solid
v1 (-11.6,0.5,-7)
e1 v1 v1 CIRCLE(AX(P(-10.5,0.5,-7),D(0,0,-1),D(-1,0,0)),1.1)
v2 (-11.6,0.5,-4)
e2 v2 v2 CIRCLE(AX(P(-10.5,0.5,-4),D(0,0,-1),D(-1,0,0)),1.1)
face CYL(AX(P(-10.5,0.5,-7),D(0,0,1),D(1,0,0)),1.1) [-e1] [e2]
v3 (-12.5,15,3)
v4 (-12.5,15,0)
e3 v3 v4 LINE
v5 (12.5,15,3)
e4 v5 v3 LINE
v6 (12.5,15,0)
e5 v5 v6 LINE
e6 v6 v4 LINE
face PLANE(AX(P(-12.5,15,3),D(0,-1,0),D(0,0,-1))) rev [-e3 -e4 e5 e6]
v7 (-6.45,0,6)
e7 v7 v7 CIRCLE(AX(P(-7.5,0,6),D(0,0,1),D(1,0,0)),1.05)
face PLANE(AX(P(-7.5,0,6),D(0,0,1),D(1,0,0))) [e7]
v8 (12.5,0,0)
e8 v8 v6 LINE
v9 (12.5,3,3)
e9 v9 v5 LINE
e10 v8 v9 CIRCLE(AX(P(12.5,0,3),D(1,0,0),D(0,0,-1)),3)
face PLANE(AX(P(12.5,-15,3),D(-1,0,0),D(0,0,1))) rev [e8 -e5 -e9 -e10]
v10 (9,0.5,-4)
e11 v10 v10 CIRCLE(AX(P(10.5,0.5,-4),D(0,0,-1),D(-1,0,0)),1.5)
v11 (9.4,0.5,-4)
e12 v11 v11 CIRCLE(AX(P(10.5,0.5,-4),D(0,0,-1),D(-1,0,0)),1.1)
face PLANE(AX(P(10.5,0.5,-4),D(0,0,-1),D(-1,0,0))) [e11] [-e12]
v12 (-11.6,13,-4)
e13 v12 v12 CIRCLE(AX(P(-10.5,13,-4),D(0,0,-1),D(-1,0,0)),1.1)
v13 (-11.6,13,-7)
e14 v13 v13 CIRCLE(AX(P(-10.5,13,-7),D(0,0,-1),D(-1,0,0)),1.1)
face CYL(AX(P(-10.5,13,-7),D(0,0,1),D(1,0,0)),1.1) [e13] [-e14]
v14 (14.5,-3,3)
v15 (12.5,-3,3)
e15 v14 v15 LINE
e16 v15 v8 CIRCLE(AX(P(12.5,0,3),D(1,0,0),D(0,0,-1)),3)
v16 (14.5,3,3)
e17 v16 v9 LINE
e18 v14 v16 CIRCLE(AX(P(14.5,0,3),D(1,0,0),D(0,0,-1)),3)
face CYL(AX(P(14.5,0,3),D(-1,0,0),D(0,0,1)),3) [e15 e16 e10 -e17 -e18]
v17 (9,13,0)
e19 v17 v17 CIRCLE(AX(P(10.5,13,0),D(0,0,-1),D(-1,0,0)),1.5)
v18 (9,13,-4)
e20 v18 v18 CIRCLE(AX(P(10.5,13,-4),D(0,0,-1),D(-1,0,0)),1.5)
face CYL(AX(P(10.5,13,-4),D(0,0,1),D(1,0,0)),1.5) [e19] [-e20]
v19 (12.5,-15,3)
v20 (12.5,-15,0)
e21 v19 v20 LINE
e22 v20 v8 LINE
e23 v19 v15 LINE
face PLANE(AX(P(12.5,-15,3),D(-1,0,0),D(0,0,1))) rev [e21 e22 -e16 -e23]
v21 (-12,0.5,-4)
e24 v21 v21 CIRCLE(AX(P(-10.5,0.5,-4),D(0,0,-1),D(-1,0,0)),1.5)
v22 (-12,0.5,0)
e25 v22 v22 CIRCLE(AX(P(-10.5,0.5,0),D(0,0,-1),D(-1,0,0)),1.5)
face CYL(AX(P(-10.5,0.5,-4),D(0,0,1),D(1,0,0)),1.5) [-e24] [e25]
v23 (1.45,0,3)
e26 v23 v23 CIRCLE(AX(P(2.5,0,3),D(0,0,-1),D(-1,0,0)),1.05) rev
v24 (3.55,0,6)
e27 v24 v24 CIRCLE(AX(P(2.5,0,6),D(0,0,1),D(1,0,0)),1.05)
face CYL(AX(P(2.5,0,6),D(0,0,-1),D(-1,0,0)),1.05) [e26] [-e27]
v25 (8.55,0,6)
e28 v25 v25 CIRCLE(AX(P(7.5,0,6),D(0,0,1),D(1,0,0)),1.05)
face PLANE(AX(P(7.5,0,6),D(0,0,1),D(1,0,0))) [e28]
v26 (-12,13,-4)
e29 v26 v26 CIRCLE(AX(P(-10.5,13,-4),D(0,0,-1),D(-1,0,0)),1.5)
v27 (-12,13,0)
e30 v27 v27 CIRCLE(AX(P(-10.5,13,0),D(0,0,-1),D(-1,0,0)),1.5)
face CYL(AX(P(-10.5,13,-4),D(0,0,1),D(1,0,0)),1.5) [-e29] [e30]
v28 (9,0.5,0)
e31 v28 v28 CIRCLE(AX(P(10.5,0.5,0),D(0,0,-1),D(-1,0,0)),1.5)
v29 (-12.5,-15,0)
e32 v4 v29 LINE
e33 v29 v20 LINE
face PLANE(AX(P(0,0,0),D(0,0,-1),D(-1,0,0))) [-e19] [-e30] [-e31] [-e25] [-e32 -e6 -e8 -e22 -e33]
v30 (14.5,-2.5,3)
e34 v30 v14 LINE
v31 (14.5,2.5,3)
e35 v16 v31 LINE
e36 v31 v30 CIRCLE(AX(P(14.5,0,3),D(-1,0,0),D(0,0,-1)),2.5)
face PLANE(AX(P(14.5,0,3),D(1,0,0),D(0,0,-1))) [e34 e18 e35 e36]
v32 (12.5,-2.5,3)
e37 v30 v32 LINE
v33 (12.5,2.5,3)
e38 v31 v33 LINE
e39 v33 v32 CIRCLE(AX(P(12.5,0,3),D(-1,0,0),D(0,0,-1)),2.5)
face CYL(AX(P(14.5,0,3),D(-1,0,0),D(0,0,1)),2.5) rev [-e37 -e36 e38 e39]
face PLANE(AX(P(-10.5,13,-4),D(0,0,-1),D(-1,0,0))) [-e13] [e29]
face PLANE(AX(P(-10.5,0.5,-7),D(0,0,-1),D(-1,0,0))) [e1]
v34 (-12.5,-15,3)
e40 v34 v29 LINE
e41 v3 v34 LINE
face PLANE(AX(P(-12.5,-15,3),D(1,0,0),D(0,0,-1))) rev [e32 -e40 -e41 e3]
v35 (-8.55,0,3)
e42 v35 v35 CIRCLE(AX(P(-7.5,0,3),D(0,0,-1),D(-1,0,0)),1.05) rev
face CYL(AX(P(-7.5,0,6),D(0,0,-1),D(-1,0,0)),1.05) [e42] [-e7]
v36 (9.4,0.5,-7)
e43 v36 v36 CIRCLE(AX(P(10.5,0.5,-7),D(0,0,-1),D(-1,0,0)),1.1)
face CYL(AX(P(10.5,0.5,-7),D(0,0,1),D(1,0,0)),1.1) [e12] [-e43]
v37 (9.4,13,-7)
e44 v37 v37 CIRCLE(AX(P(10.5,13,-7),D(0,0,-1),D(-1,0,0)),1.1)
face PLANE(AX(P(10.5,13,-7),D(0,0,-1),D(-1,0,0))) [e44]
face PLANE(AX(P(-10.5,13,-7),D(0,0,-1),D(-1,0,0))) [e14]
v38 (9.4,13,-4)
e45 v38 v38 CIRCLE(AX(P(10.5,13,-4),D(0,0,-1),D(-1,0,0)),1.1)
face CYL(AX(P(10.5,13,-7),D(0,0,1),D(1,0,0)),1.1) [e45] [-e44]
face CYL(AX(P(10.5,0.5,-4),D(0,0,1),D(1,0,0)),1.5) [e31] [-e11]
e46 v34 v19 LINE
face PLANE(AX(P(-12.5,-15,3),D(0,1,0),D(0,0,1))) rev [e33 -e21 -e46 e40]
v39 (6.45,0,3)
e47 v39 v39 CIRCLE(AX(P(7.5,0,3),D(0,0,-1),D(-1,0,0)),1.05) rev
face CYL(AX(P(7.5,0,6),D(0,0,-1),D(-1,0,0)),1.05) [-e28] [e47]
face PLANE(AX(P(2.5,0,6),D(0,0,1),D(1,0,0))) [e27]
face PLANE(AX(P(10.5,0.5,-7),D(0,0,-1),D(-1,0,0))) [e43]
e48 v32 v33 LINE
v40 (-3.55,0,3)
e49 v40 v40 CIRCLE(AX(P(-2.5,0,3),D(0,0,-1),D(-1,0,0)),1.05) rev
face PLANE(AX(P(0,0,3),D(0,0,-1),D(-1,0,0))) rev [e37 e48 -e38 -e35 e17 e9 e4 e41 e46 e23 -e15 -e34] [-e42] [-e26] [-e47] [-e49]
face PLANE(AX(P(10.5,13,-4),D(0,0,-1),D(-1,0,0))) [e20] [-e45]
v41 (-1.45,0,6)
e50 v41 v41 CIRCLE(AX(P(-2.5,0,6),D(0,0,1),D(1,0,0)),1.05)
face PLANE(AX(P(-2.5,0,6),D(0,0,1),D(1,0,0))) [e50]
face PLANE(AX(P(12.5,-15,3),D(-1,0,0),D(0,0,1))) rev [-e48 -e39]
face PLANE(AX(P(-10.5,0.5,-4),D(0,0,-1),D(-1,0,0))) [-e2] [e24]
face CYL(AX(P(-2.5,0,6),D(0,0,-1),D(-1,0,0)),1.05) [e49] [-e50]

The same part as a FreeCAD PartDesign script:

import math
import FreeCAD as App
import Part
import Sketcher

V = App.Vector
Q = App.Units.Quantity


def add_polygon(sketch, points):
    """Adds a closed chain of lines whose ends are joined by coincident constraints."""
    first, n = sketch.GeometryCount, len(points)
    for a, b in zip(points, points[1:] + points[:1]):
        sketch.addGeometry(Part.LineSegment(App.Vector(*a, 0), App.Vector(*b, 0)), False)
    for i in range(n):
        sketch.addConstraint(Sketcher.Constraint("Coincident", first + i, 2, first + (i + 1) % n, 1))

doc = App.newDocument("Part")
body = doc.addObject("PartDesign::Body", "Body")

sketch1 = doc.addObject("Sketcher::SketchObject", "Sketch")
body.addObject(sketch1)
sketch1.AttachmentSupport = (doc.XY_Plane, [""])
sketch1.MapMode = "FlatFace"
add_polygon(sketch1, [(-12.5, 15), (-12.5, -15), (12.5, -15), (12.5, 15)])
sketch1.addConstraint(Sketcher.Constraint("Vertical", 0))
sketch1.addConstraint(Sketcher.Constraint("Horizontal", 1))
sketch1.addConstraint(Sketcher.Constraint("Vertical", 2))
sketch1.addConstraint(Sketcher.Constraint("Horizontal", 3))
sketch1.addConstraint(Sketcher.Constraint("Symmetric", 0, 2, 2, 2, -1, 1))
sketch1.addConstraint(Sketcher.Constraint("DistanceX", 1, 1, 1, 2, Q("25 mm")))
sketch1.addConstraint(Sketcher.Constraint("DistanceY", 0, 2, 0, 1, Q("30 mm")))
pad1 = doc.addObject("PartDesign::Pad", "Pad")
body.addObject(pad1)
pad1.Profile = sketch1
pad1.Length = 3

sketch2 = doc.addObject("Sketcher::SketchObject", "Sketch001")
body.addObject(sketch2)
sketch2.AttachmentSupport = (doc.XY_Plane, [""])
sketch2.MapMode = "FlatFace"
sketch2.AttachmentOffset = App.Placement(V(0, 0, 3), App.Rotation())
sketch2.addGeometry(Part.Circle(V(-7.5, 0, 0), V(0, 0, 1), 1.05), False)
sketch2.addGeometry(Part.Circle(V(-2.5, 0, 0), V(0, 0, 1), 1.05), False)
sketch2.addGeometry(Part.Circle(V(2.5, 0, 0), V(0, 0, 1), 1.05), False)
sketch2.addGeometry(Part.Circle(V(7.5, 0, 0), V(0, 0, 1), 1.05), False)
sketch2.addConstraint(Sketcher.Constraint("Equal", 0, 1))
sketch2.addConstraint(Sketcher.Constraint("Equal", 1, 2))
sketch2.addConstraint(Sketcher.Constraint("Equal", 2, 3))
sketch2.addConstraint(Sketcher.Constraint("Symmetric", 1, 3, 2, 3, -1, 1))
sketch2.addConstraint(Sketcher.Constraint("Symmetric", 0, 3, 3, 3, -1, 1))
sketch2.addConstraint(Sketcher.Constraint("PointOnObject", 0, 3, -1))
sketch2.addConstraint(Sketcher.Constraint("PointOnObject", 1, 3, -1))
sketch2.addConstraint(Sketcher.Constraint("Diameter", 0, Q("2.1 mm")))
sketch2.addConstraint(Sketcher.Constraint("DistanceX", 0, 3, 1, 3, Q("5 mm")))
sketch2.addConstraint(Sketcher.Constraint("DistanceX", 1, 3, 2, 3, Q("5 mm")))
pad2 = doc.addObject("PartDesign::Pad", "Pad001")
body.addObject(pad2)
pad2.Profile = sketch2
pad2.Length = 3

sketch3 = doc.addObject("Sketcher::SketchObject", "Sketch002")
body.addObject(sketch3)
sketch3.AttachmentSupport = (doc.YZ_Plane, [""])
sketch3.MapMode = "FlatFace"
sketch3.AttachmentOffset = App.Placement(V(0, 0, 12.5), App.Rotation())
sketch3.addGeometry(Part.LineSegment(V(3, 3, 0), V(2.5, 3, 0)), False)
sketch3.addGeometry(Part.ArcOfCircle(Part.Circle(V(0, 3, 0), V(0, 0, 1), 2.5), math.radians(180), math.radians(360)), False)
sketch3.addGeometry(Part.LineSegment(V(-2.5, 3, 0), V(-3, 3, 0)), False)
sketch3.addGeometry(Part.ArcOfCircle(Part.Circle(V(0, 3, 0), V(0, 0, 1), 3), math.radians(180), math.radians(360)), False)
sketch3.addConstraint(Sketcher.Constraint("Coincident", 0, 2, 1, 2))
sketch3.addConstraint(Sketcher.Constraint("Coincident", 1, 1, 2, 1))
sketch3.addConstraint(Sketcher.Constraint("Coincident", 2, 2, 3, 1))
sketch3.addConstraint(Sketcher.Constraint("Coincident", 3, 2, 0, 1))
sketch3.addConstraint(Sketcher.Constraint("Horizontal", 0))
sketch3.addConstraint(Sketcher.Constraint("Horizontal", 2))
sketch3.addConstraint(Sketcher.Constraint("Coincident", 3, 3, 1, 3))
sketch3.addConstraint(Sketcher.Constraint("Symmetric", 0, 2, 1, 1, -2))
sketch3.addConstraint(Sketcher.Constraint("Horizontal", 3, 3, 0, 2))
sketch3.addConstraint(Sketcher.Constraint("Radius", 3, Q("3 mm")))
sketch3.addConstraint(Sketcher.Constraint("Radius", 1, Q("2.5 mm")))
sketch3.addConstraint(Sketcher.Constraint("DistanceY", -1, 1, 1, 3, Q("3 mm")))
pad3 = doc.addObject("PartDesign::Pad", "Pad002")
body.addObject(pad3)
pad3.Profile = sketch3
pad3.Length = 2

sketch4 = doc.addObject("Sketcher::SketchObject", "Sketch003")
body.addObject(sketch4)
sketch4.AttachmentSupport = (doc.XY_Plane, [""])
sketch4.MapMode = "FlatFace"
sketch4.addGeometry(Part.Circle(V(-10.5, 13, 0), V(0, 0, 1), 1.5), False)
sketch4.addGeometry(Part.Circle(V(10.5, 13, 0), V(0, 0, 1), 1.5), False)
sketch4.addGeometry(Part.Circle(V(10.5, 0.5, 0), V(0, 0, 1), 1.5), False)
sketch4.addGeometry(Part.Circle(V(-10.5, 0.5, 0), V(0, 0, 1), 1.5), False)
sketch4.addConstraint(Sketcher.Constraint("Equal", 0, 1))
sketch4.addConstraint(Sketcher.Constraint("Equal", 1, 2))
sketch4.addConstraint(Sketcher.Constraint("Equal", 2, 3))
sketch4.addConstraint(Sketcher.Constraint("Symmetric", 0, 3, 1, 3, -2))
sketch4.addConstraint(Sketcher.Constraint("Symmetric", 2, 3, 3, 3, -2))
sketch4.addConstraint(Sketcher.Constraint("Vertical", 1, 3, 2, 3))
sketch4.addConstraint(Sketcher.Constraint("Diameter", 0, Q("3 mm")))
sketch4.addConstraint(Sketcher.Constraint("DistanceY", -1, 1, 0, 3, Q("13 mm")))
sketch4.addConstraint(Sketcher.Constraint("DistanceX", 0, 3, 1, 3, Q("21 mm")))
sketch4.addConstraint(Sketcher.Constraint("DistanceY", -1, 1, 2, 3, Q("0.5 mm")))
pad4 = doc.addObject("PartDesign::Pad", "Pad003")
body.addObject(pad4)
pad4.Profile = sketch4
pad4.Length = 4
pad4.Reversed = True

sketch5 = doc.addObject("Sketcher::SketchObject", "Sketch004")
body.addObject(sketch5)
sketch5.AttachmentSupport = (doc.XY_Plane, [""])
sketch5.MapMode = "FlatFace"
sketch5.AttachmentOffset = App.Placement(V(0, 0, -4), App.Rotation())
sketch5.addGeometry(Part.Circle(V(-10.5, 13, 0), V(0, 0, 1), 1.1), False)
sketch5.addGeometry(Part.Circle(V(10.5, 13, 0), V(0, 0, 1), 1.1), False)
sketch5.addGeometry(Part.Circle(V(10.5, 0.5, 0), V(0, 0, 1), 1.1), False)
sketch5.addGeometry(Part.Circle(V(-10.5, 0.5, 0), V(0, 0, 1), 1.1), False)
sketch5.addConstraint(Sketcher.Constraint("Equal", 0, 1))
sketch5.addConstraint(Sketcher.Constraint("Equal", 1, 2))
sketch5.addConstraint(Sketcher.Constraint("Equal", 2, 3))
sketch5.addConstraint(Sketcher.Constraint("Symmetric", 0, 3, 1, 3, -2))
sketch5.addConstraint(Sketcher.Constraint("Symmetric", 2, 3, 3, 3, -2))
sketch5.addConstraint(Sketcher.Constraint("Vertical", 1, 3, 2, 3))
sketch5.addConstraint(Sketcher.Constraint("Diameter", 0, Q("2.2 mm")))
sketch5.addConstraint(Sketcher.Constraint("DistanceY", -1, 1, 0, 3, Q("13 mm")))
sketch5.addConstraint(Sketcher.Constraint("DistanceX", 0, 3, 1, 3, Q("21 mm")))
sketch5.addConstraint(Sketcher.Constraint("DistanceY", -1, 1, 2, 3, Q("0.5 mm")))
pad5 = doc.addObject("PartDesign::Pad", "Pad004")
body.addObject(pad5)
pad5.Profile = sketch5
pad5.Length = 3
pad5.Reversed = True

doc.recompute()
